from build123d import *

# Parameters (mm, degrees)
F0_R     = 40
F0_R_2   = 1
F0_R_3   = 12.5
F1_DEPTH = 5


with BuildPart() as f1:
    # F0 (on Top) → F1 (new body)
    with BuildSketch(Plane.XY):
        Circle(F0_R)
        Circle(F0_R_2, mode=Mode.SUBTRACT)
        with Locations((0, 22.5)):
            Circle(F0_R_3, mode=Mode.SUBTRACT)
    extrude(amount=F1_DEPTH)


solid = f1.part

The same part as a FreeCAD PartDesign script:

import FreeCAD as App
import Part
import Sketcher
from FreeCAD import Vector

doc = App.newDocument("Part")
body = doc.addObject("PartDesign::Body", "Body")

sketch1 = body.newObject("Sketcher::SketchObject", "Sketch")
sketch1.AttachmentSupport = (doc.getObject("XY_Plane"), [""])
sketch1.MapMode = "FlatFace"
sketch1.addGeometry([
    Part.Circle(Vector(0, 0, 0), Vector(0, 0, 1), 40),
    Part.Circle(Vector(0, 0, 0), Vector(0, 0, 1), 1),
    Part.Circle(Vector(0, 22.5, 0), Vector(0, 0, 1), 12.5),
], False)
sketch1.addConstraint([
    Sketcher.Constraint("Coincident", 0, 3, -1, 1),
    Sketcher.Constraint("Coincident", 1, 3, -1, 1),
    Sketcher.Constraint("PointOnObject", 2, 3, -2),
    Sketcher.Constraint("Diameter", 0, 80.0),
    Sketcher.Constraint("Diameter", 1, 2.0),
    Sketcher.Constraint("Diameter", 2, 25.0),
    Sketcher.Constraint("DistanceY", -1, 1, 2, 3, 22.5),
])
pad1 = body.newObject("PartDesign::Pad", "Pad")
pad1.Profile = sketch1
pad1.Length = 5

doc.recompute()
